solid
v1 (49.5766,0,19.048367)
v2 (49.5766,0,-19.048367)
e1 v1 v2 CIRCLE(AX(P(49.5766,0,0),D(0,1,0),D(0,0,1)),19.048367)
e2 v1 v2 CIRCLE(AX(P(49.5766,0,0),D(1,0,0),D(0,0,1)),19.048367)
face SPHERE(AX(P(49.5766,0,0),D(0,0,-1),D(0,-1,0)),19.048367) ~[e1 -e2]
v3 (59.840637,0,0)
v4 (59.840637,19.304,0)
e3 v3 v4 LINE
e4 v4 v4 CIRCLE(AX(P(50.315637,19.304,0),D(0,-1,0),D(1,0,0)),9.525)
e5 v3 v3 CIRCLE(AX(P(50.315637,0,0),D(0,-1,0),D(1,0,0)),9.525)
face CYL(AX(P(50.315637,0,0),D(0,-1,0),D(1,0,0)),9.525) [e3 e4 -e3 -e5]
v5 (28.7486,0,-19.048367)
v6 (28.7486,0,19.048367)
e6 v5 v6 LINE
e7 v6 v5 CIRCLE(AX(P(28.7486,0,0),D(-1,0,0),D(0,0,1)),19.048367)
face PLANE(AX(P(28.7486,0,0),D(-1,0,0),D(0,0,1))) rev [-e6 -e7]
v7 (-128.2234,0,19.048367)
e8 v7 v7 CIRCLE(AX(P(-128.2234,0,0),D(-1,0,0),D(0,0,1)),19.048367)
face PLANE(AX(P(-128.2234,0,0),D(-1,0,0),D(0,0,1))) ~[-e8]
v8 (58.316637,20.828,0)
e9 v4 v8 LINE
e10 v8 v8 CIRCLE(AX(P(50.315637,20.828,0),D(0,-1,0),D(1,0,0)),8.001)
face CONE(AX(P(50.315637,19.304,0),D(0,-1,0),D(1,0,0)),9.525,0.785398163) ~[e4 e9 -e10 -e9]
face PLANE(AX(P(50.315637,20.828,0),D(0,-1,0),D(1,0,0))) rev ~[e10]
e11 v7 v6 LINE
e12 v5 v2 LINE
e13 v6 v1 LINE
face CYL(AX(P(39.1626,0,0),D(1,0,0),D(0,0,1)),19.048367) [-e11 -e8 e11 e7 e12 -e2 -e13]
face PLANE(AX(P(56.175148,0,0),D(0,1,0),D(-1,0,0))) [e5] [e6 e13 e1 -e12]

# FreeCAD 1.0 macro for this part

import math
import FreeCAD as App
import Part
import Sketcher

V = App.Vector
Q = App.Units.Quantity


def edges_at(feature, points):
    """Names of the edges that pass closest to the given points."""
    edges = feature.Shape.Edges
    near = lambda p: min(range(len(edges)), key=lambda i: edges[i].distToShape(Part.Vertex(*p))[0])
    return sorted({f"Edge{near(p) + 1}" for p in points})

doc = App.newDocument("Part")
body = doc.addObject("PartDesign::Body", "Body")

sketch1 = doc.addObject("Sketcher::SketchObject", "Sketch")
body.addObject(sketch1)
sketch1.AttachmentSupport = (doc.XZ_Plane, [""])
sketch1.MapMode = "FlatFace"
sketch1.addGeometry([
    Part.LineSegment(V(-128.2234, 19.048367, 0), V(-128.2234, 0, 0)),
    Part.LineSegment(V(-128.2234, 0, 0), V(28.7486, 0, 0)),
    Part.LineSegment(V(28.7486, 0, 0), V(28.7486, 19.048367, 0)),
    Part.LineSegment(V(28.7486, 19.048367, 0), V(-128.2234, 19.048367, 0)),
], False)
sketch1.addConstraint([
    Sketcher.Constraint("Coincident", 0, 2, 1, 1),
    Sketcher.Constraint("Coincident", 1, 2, 2, 1),
    Sketcher.Constraint("Coincident", 2, 2, 3, 1),
    Sketcher.Constraint("Coincident", 3, 2, 0, 1),
    Sketcher.Constraint("Vertical", 0),
    Sketcher.Constraint("Horizontal", 1),
    Sketcher.Constraint("Vertical", 2),
    Sketcher.Constraint("Horizontal", 3),
    Sketcher.Constraint("PointOnObject", 0, 2, -1),
    Sketcher.Constraint("DistanceX", 1, 1, 1, 2, Q("6.18 in")),
    Sketcher.Constraint("DistanceX", 0, 2, -1, 1, Q("128.2234 mm")),
    Sketcher.Constraint("DistanceY", 0, 2, 0, 1, Q("19.048367 mm")),
])
revolution = doc.addObject("PartDesign::Revolution", "Revolution")
body.addObject(revolution)
revolution.Profile = sketch1
revolution.ReferenceAxis = (sketch1, ["H_Axis"])
revolution.Angle = 360

sketch2 = doc.addObject("Sketcher::SketchObject", "Sketch001")
body.addObject(sketch2)
sketch2.AttachmentSupport = (doc.XZ_Plane, [""])
sketch2.MapMode = "FlatFace"
sketch2.addGeometry([
    Part.LineSegment(V(28.7486, 19.048367, 0), V(28.7486, 0, 0)),
    Part.LineSegment(V(28.7486, 0, 0), V(49.5766, 0, 0)),
    Part.LineSegment(V(49.5766, 0, 0), V(49.5766, 19.048367, 0)),
    Part.LineSegment(V(49.5766, 19.048367, 0), V(28.7486, 19.048367, 0)),
], False)
sketch2.addConstraint([
    Sketcher.Constraint("Coincident", 0, 2, 1, 1),
    Sketcher.Constraint("Coincident", 1, 2, 2, 1),
    Sketcher.Constraint("Coincident", 2, 2, 3, 1),
    Sketcher.Constraint("Coincident", 3, 2, 0, 1),
    Sketcher.Constraint("Vertical", 0),
    Sketcher.Constraint("Horizontal", 1),
    Sketcher.Constraint("Vertical", 2),
    Sketcher.Constraint("Horizontal", 3),
    Sketcher.Constraint("PointOnObject", 0, 2, -1),
    Sketcher.Constraint("DistanceX", 1, 1, 1, 2, Q("0.82 in")),
    Sketcher.Constraint("DistanceX", -1, 1, 0, 2, Q("28.7486 mm")),
    Sketcher.Constraint("DistanceY", 0, 2, 0, 1, Q("19.048367 mm")),
])
revolution2 = doc.addObject("PartDesign::Revolution", "Revolution001")
body.addObject(revolution2)
revolution2.Profile = sketch2
revolution2.ReferenceAxis = (sketch2, ["H_Axis"])
revolution2.Angle = 180

sketch3 = doc.addObject("Sketcher::SketchObject", "Sketch002")
body.addObject(sketch3)
sketch3.AttachmentSupport = (doc.YZ_Plane, [""])
sketch3.MapMode = "FlatFace"
sketch3.AttachmentOffset = App.Placement(V(0, 0, 49.5766), App.Rotation())
sketch3.addGeometry([
    Part.ArcOfCircle(Part.Circle(V(0, 0, 0), V(0, 0, 1), 19.048367), math.radians(90), math.radians(270)),
    Part.LineSegment(V(0, -19.048367, 0), V(0, 19.048367, 0)),
], False)
sketch3.addConstraint([
    Sketcher.Constraint("Coincident", 0, 1, 1, 2),
    Sketcher.Constraint("Coincident", 1, 1, 0, 2),
    Sketcher.Constraint("Vertical", 1),
    Sketcher.Constraint("Coincident", 0, 3, -1, 1),
    Sketcher.Constraint("PointOnObject", 0, 1, -2),
    Sketcher.Constraint("Radius", 0, Q("19.048367 mm")),
])
revolution3 = doc.addObject("PartDesign::Revolution", "Revolution002")
body.addObject(revolution3)
revolution3.Profile = sketch3
revolution3.ReferenceAxis = (sketch3, ["V_Axis"])
revolution3.Angle = 90

sketch4 = doc.addObject("Sketcher::SketchObject", "Sketch003")
body.addObject(sketch4)
sketch4.AttachmentSupport = (doc.XZ_Plane, [""])
sketch4.MapMode = "FlatFace"
sketch4.addGeometry(Part.Circle(V(50.315637, 0, 0), V(0, 0, 1), 9.525), False)
sketch4.addConstraint([
    Sketcher.Constraint("PointOnObject", 0, 3, -1),
    Sketcher.Constraint("Diameter", 0, Q("0.75 in")),
    Sketcher.Constraint("DistanceX", -1, 1, 0, 3, Q("50.315637 mm")),
])
pad1 = doc.addObject("PartDesign::Pad", "Pad")
body.addObject(pad1)
pad1.Profile = sketch4
pad1.Length = Q("0.82 in")
pad1.Reversed = True
doc.recompute()

chamfer = doc.addObject("PartDesign::Chamfer", "Chamfer")
body.addObject(chamfer)
chamfer.Base = (pad1, edges_at(pad1, [(40.791, 20.828, 0)]))
chamfer.ChamferType = "Two distances"
chamfer.Size = Q("0.06 in")
chamfer.Size2 = Q("0.06 in")

doc.recompute()
